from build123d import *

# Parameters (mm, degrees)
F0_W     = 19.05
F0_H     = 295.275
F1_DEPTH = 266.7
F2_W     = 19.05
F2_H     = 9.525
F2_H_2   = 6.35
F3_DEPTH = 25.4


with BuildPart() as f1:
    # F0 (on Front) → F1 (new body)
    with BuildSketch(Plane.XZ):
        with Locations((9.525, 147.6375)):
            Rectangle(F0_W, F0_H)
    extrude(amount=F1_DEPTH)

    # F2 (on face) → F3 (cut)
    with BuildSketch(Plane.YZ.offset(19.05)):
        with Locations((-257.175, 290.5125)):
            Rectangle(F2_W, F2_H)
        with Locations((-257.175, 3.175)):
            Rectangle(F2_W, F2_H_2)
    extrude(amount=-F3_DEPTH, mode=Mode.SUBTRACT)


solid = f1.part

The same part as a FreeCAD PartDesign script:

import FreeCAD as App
import Part
import Sketcher

V = App.Vector
Q = App.Units.Quantity

doc = App.newDocument("Part")
body = doc.addObject("PartDesign::Body", "Body")

sketch1 = body.newObject("Sketcher::SketchObject", "Sketch")
sketch1.AttachmentSupport = (doc.getObject("XZ_Plane"), [""])
sketch1.MapMode = "FlatFace"
sketch1.addGeometry(Part.LineSegment(V(0, 295.275, 0), V(0, 0, 0)), False)
sketch1.addGeometry(Part.LineSegment(V(0, 0, 0), V(19.05, 0, 0)), False)
sketch1.addGeometry(Part.LineSegment(V(19.05, 0, 0), V(19.05, 295.275, 0)), False)
sketch1.addGeometry(Part.LineSegment(V(19.05, 295.275, 0), V(0, 295.275, 0)), False)
sketch1.addConstraint(Sketcher.Constraint("Coincident", 0, 2, 1, 1))
sketch1.addConstraint(Sketcher.Constraint("Coincident", 1, 2, 2, 1))
sketch1.addConstraint(Sketcher.Constraint("Coincident", 2, 2, 3, 1))
sketch1.addConstraint(Sketcher.Constraint("Coincident", 3, 2, 0, 1))
sketch1.addConstraint(Sketcher.Constraint("Vertical", 0))
sketch1.addConstraint(Sketcher.Constraint("Horizontal", 1))
sketch1.addConstraint(Sketcher.Constraint("Vertical", 2))
sketch1.addConstraint(Sketcher.Constraint("Horizontal", 3))
sketch1.addConstraint(Sketcher.Constraint("Coincident", 0, 2, -1, 1))
sketch1.addConstraint(Sketcher.Constraint("DistanceX", 1, 1, 1, 2, Q("0.75 in")))
sketch1.addConstraint(Sketcher.Constraint("DistanceY", 0, 2, 0, 1, Q("11.625 in")))
pad1 = body.newObject("PartDesign::Pad", "Pad")
pad1.Profile = sketch1
pad1.Length = Q("10.5 in")

sketch2 = body.newObject("Sketcher::SketchObject", "Sketch001")
sketch2.AttachmentSupport = (doc.getObject("YZ_Plane"), [""])
sketch2.MapMode = "FlatFace"
sketch2.AttachmentOffset = App.Placement(V(0, 0, 0.75 * 25.4), App.Rotation())
sketch2.addGeometry(Part.LineSegment(V(-266.7, 295.275, 0), V(-266.7, 285.75, 0)), False)
sketch2.addGeometry(Part.LineSegment(V(-266.7, 285.75, 0), V(-247.65, 285.75, 0)), False)
sketch2.addGeometry(Part.LineSegment(V(-247.65, 285.75, 0), V(-247.65, 295.275, 0)), False)
sketch2.addGeometry(Part.LineSegment(V(-247.65, 295.275, 0), V(-266.7, 295.275, 0)), False)
sketch2.addGeometry(Part.LineSegment(V(-266.7, 6.35, 0), V(-266.7, 0, 0)), False)
sketch2.addGeometry(Part.LineSegment(V(-266.7, 0, 0), V(-247.65, 0, 0)), False)
sketch2.addGeometry(Part.LineSegment(V(-247.65, 0, 0), V(-247.65, 6.35, 0)), False)
sketch2.addGeometry(Part.LineSegment(V(-247.65, 6.35, 0), V(-266.7, 6.35, 0)), False)
sketch2.addConstraint(Sketcher.Constraint("Coincident", 0, 2, 1, 1))
sketch2.addConstraint(Sketcher.Constraint("Coincident", 1, 2, 2, 1))
sketch2.addConstraint(Sketcher.Constraint("Coincident", 2, 2, 3, 1))
sketch2.addConstraint(Sketcher.Constraint("Coincident", 3, 2, 0, 1))
sketch2.addConstraint(Sketcher.Constraint("Coincident", 4, 2, 5, 1))
sketch2.addConstraint(Sketcher.Constraint("Coincident", 5, 2, 6, 1))
sketch2.addConstraint(Sketcher.Constraint("Coincident", 6, 2, 7, 1))
sketch2.addConstraint(Sketcher.Constraint("Coincident", 7, 2, 4, 1))
sketch2.addConstraint(Sketcher.Constraint("Vertical", 0))
sketch2.addConstraint(Sketcher.Constraint("Horizontal", 1))
sketch2.addConstraint(Sketcher.Constraint("Vertical", 2))
sketch2.addConstraint(Sketcher.Constraint("Horizontal", 3))
sketch2.addConstraint(Sketcher.Constraint("Vertical", 4))
sketch2.addConstraint(Sketcher.Constraint("Horizontal", 5))
sketch2.addConstraint(Sketcher.Constraint("Vertical", 6))
sketch2.addConstraint(Sketcher.Constraint("Horizontal", 7))
sketch2.addConstraint(Sketcher.Constraint("PointOnObject", 4, 2, -1))
sketch2.addConstraint(Sketcher.Constraint("Vertical", 3, 2, 4, 2))
sketch2.addConstraint(Sketcher.Constraint("Vertical", 2, 2, 5, 2))
sketch2.addConstraint(Sketcher.Constraint("DistanceY", 6, 2, 1, 2, Q("11 in")))
sketch2.addConstraint(Sketcher.Constraint("DistanceX", 1, 1, 1, 2, Q("0.75 in")))
sketch2.addConstraint(Sketcher.Constraint("DistanceY", 4, 2, 4, 1, Q("0.25 in")))
sketch2.addConstraint(Sketcher.Constraint("DistanceX", 0, 2, -1, 1, Q("10.5 in")))
sketch2.addConstraint(Sketcher.Constraint("DistanceY", 0, 2, 0, 1, Q("0.375 in")))
pocket1 = body.newObject("PartDesign::Pocket", "Pocket")
pocket1.Profile = sketch2
pocket1.Length = Q("1 in")

doc.recompute()
